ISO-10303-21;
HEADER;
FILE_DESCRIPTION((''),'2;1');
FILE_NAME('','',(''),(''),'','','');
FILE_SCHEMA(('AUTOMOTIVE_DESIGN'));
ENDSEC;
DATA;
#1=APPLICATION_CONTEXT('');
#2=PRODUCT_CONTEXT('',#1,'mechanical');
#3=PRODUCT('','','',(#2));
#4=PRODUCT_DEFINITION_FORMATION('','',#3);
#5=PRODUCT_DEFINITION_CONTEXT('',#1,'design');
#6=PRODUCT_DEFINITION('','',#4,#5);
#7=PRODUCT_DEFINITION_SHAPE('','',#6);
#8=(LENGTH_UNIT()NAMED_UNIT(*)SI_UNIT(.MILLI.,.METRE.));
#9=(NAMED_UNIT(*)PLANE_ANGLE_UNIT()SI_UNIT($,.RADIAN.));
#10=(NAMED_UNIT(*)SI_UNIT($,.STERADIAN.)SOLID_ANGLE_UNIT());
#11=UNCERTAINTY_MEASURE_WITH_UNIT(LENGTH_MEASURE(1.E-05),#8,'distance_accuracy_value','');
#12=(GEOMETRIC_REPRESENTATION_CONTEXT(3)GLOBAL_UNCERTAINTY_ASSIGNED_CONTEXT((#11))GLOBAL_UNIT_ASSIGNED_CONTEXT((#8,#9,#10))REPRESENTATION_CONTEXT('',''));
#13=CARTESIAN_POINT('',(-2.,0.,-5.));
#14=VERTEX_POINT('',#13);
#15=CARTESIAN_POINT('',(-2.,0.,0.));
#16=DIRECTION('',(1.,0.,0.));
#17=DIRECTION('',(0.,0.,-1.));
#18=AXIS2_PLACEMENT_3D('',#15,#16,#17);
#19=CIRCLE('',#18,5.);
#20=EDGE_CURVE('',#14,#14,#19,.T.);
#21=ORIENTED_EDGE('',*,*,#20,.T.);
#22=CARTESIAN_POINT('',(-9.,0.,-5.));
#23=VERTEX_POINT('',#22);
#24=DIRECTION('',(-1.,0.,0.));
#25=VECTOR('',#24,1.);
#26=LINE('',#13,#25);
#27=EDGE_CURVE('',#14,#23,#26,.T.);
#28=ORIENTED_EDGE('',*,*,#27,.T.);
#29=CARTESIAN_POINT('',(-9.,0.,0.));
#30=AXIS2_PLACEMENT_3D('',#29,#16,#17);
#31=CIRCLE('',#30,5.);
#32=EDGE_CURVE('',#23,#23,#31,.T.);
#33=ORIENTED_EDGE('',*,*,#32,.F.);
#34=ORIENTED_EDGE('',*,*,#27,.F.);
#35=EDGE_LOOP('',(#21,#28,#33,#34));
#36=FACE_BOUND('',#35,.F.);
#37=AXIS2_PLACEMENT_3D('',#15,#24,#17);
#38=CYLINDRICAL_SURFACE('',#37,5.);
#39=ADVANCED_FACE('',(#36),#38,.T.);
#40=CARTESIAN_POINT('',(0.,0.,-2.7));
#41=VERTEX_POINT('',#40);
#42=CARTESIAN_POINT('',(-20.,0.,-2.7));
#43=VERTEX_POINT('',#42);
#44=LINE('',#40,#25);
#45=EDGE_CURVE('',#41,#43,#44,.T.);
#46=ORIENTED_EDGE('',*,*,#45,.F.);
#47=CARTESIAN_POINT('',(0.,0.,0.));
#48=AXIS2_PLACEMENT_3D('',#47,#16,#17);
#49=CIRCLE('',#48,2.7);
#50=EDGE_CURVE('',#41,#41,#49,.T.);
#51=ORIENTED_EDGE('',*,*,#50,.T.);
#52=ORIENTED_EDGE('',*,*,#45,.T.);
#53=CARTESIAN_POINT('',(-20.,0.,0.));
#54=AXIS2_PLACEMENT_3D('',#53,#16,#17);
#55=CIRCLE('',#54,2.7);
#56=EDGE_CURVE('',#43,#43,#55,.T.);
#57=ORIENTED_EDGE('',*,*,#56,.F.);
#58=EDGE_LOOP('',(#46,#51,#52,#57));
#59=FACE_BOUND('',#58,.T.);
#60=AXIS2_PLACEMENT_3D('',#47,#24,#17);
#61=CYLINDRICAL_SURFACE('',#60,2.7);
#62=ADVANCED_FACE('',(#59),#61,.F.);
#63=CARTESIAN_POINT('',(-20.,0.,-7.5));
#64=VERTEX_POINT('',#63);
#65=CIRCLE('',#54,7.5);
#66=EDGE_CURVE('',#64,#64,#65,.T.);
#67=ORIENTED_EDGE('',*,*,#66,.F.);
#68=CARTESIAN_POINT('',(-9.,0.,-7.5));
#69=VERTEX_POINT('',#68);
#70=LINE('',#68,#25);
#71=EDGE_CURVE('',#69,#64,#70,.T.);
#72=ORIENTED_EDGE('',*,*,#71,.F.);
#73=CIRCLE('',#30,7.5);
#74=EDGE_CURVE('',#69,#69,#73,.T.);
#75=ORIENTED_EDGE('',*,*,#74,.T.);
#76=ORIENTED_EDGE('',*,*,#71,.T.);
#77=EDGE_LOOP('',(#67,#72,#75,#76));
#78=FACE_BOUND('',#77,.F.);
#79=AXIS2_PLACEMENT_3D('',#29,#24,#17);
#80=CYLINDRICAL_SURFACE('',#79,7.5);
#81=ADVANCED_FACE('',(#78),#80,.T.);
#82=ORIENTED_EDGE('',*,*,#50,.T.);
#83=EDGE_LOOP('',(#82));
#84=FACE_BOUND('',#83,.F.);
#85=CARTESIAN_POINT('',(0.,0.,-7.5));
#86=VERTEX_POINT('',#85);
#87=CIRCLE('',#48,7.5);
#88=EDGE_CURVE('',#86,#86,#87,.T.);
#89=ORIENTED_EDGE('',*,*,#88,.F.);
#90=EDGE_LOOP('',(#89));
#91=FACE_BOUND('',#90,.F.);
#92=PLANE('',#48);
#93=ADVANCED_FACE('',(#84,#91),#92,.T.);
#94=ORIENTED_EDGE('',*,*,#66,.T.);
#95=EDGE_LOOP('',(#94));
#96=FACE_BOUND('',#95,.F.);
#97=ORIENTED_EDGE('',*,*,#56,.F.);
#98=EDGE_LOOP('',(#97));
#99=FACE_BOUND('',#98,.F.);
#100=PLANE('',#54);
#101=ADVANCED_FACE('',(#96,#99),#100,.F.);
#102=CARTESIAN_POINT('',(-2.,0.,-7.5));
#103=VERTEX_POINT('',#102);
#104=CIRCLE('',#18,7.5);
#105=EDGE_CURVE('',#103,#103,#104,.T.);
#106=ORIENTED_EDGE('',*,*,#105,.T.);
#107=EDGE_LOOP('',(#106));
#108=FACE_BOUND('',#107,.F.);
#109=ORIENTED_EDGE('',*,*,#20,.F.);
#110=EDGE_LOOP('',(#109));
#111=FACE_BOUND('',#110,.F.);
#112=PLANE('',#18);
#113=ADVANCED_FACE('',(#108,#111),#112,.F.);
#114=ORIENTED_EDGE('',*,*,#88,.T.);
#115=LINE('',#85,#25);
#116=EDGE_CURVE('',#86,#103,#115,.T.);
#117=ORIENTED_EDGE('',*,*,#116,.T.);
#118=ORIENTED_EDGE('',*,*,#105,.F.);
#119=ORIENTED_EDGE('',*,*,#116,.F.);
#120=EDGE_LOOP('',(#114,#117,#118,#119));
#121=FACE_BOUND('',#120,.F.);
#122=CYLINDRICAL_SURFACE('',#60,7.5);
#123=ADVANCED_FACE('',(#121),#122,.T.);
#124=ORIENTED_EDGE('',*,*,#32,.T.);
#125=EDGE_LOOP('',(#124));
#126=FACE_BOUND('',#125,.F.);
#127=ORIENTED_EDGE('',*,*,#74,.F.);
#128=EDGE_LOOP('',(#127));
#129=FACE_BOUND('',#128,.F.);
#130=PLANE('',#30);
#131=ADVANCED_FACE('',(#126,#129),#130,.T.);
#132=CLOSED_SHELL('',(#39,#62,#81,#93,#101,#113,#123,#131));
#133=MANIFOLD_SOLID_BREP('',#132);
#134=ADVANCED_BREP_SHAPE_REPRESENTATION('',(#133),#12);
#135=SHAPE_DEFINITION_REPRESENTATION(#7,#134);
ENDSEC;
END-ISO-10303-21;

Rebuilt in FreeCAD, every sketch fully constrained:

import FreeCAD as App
import Part
import Sketcher
Q = App.Units.Quantity

doc = App.newDocument("Part")
params = doc.addObject("Spreadsheet::Sheet", "Params")
for row, (alias, value) in enumerate([
    ("sketch1_width", "2 mm"),
    ("sketch1_width2", "7 mm"),
    ("sketch1_width3", "11 mm"),
    ("revolution_angle", "360 deg"),
], start=1):
    params.set(f"A{row}", alias)
    params.set(f"B{row}", "=" + value)
    params.setAlias(f"B{row}", alias)

body = doc.addObject("PartDesign::Body", "Body")

# Sketch on XZ plane
sketch1 = body.newObject("Sketcher::SketchObject", "Sketch")
sketch1.AttachmentSupport = (doc.getObject("XZ_Plane"), [""])
sketch1.MapMode = "FlatFace"
sketch1.addGeometry([
    Part.LineSegment(App.Vector(-20, -2.7, 0), App.Vector(0, -2.7, 0)),  # 0
    Part.LineSegment(App.Vector(0, -2.7, 0), App.Vector(0, -7.5, 0)),  # 1
    Part.LineSegment(App.Vector(0, -7.5, 0), App.Vector(-2, -7.5, 0)),  # 2
    Part.LineSegment(App.Vector(-2, -7.5, 0), App.Vector(-2, -5, 0)),  # 3
    Part.LineSegment(App.Vector(-2, -5, 0), App.Vector(-9, -5, 0)),  # 4
    Part.LineSegment(App.Vector(-9, -5, 0), App.Vector(-9, -7.5, 0)),  # 5
    Part.LineSegment(App.Vector(-9, -7.5, 0), App.Vector(-20, -7.5, 0)),  # 6
    Part.LineSegment(App.Vector(-20, -7.5, 0), App.Vector(-20, -2.7, 0)),  # 7
], False)
sketch1.addConstraint([
    Sketcher.Constraint("Coincident", 0, 2, 1, 1),
    Sketcher.Constraint("Coincident", 1, 2, 2, 1),
    Sketcher.Constraint("Coincident", 2, 2, 3, 1),
    Sketcher.Constraint("Coincident", 3, 2, 4, 1),
    Sketcher.Constraint("Coincident", 4, 2, 5, 1),
    Sketcher.Constraint("Coincident", 5, 2, 6, 1),
    Sketcher.Constraint("Coincident", 6, 2, 7, 1),
    Sketcher.Constraint("Coincident", 7, 2, 0, 1),
    Sketcher.Constraint("Horizontal", 0),
    Sketcher.Constraint("Vertical", 1),
    Sketcher.Constraint("Horizontal", 2),
    Sketcher.Constraint("Vertical", 3),
    Sketcher.Constraint("Horizontal", 4),
    Sketcher.Constraint("Vertical", 5),
    Sketcher.Constraint("Horizontal", 6),
    Sketcher.Constraint("Vertical", 7),
    Sketcher.Constraint("PointOnObject", 0, 2, -2),
    Sketcher.Constraint("Horizontal", 2, 2, 5, 2),
    Sketcher.Constraint("DistanceX", 2, 2, 2, 1, Q("2 mm")),
    Sketcher.Constraint("DistanceX", 4, 2, 4, 1, Q("7 mm")),
    Sketcher.Constraint("DistanceX", 6, 2, 6, 1, Q("11 mm")),
    Sketcher.Constraint("DistanceY", 3, 2, -1, 1, Q("5 mm")),
    Sketcher.Constraint("DistanceY", 0, 2, -1, 1, Q("2.7 mm")),
    Sketcher.Constraint("DistanceY", 1, 2, -1, 1, Q("7.5 mm")),
])
sketch1.setExpression("Constraints[18]", "Params.sketch1_width")
sketch1.setExpression("Constraints[19]", "Params.sketch1_width2")
sketch1.setExpression("Constraints[20]", "Params.sketch1_width3")
revolution = body.newObject("PartDesign::Revolution", "Revolution")
revolution.Profile = sketch1
revolution.ReferenceAxis = (sketch1, ["H_Axis"])
revolution.setExpression("Angle", "Params.revolution_angle")

doc.recompute()
